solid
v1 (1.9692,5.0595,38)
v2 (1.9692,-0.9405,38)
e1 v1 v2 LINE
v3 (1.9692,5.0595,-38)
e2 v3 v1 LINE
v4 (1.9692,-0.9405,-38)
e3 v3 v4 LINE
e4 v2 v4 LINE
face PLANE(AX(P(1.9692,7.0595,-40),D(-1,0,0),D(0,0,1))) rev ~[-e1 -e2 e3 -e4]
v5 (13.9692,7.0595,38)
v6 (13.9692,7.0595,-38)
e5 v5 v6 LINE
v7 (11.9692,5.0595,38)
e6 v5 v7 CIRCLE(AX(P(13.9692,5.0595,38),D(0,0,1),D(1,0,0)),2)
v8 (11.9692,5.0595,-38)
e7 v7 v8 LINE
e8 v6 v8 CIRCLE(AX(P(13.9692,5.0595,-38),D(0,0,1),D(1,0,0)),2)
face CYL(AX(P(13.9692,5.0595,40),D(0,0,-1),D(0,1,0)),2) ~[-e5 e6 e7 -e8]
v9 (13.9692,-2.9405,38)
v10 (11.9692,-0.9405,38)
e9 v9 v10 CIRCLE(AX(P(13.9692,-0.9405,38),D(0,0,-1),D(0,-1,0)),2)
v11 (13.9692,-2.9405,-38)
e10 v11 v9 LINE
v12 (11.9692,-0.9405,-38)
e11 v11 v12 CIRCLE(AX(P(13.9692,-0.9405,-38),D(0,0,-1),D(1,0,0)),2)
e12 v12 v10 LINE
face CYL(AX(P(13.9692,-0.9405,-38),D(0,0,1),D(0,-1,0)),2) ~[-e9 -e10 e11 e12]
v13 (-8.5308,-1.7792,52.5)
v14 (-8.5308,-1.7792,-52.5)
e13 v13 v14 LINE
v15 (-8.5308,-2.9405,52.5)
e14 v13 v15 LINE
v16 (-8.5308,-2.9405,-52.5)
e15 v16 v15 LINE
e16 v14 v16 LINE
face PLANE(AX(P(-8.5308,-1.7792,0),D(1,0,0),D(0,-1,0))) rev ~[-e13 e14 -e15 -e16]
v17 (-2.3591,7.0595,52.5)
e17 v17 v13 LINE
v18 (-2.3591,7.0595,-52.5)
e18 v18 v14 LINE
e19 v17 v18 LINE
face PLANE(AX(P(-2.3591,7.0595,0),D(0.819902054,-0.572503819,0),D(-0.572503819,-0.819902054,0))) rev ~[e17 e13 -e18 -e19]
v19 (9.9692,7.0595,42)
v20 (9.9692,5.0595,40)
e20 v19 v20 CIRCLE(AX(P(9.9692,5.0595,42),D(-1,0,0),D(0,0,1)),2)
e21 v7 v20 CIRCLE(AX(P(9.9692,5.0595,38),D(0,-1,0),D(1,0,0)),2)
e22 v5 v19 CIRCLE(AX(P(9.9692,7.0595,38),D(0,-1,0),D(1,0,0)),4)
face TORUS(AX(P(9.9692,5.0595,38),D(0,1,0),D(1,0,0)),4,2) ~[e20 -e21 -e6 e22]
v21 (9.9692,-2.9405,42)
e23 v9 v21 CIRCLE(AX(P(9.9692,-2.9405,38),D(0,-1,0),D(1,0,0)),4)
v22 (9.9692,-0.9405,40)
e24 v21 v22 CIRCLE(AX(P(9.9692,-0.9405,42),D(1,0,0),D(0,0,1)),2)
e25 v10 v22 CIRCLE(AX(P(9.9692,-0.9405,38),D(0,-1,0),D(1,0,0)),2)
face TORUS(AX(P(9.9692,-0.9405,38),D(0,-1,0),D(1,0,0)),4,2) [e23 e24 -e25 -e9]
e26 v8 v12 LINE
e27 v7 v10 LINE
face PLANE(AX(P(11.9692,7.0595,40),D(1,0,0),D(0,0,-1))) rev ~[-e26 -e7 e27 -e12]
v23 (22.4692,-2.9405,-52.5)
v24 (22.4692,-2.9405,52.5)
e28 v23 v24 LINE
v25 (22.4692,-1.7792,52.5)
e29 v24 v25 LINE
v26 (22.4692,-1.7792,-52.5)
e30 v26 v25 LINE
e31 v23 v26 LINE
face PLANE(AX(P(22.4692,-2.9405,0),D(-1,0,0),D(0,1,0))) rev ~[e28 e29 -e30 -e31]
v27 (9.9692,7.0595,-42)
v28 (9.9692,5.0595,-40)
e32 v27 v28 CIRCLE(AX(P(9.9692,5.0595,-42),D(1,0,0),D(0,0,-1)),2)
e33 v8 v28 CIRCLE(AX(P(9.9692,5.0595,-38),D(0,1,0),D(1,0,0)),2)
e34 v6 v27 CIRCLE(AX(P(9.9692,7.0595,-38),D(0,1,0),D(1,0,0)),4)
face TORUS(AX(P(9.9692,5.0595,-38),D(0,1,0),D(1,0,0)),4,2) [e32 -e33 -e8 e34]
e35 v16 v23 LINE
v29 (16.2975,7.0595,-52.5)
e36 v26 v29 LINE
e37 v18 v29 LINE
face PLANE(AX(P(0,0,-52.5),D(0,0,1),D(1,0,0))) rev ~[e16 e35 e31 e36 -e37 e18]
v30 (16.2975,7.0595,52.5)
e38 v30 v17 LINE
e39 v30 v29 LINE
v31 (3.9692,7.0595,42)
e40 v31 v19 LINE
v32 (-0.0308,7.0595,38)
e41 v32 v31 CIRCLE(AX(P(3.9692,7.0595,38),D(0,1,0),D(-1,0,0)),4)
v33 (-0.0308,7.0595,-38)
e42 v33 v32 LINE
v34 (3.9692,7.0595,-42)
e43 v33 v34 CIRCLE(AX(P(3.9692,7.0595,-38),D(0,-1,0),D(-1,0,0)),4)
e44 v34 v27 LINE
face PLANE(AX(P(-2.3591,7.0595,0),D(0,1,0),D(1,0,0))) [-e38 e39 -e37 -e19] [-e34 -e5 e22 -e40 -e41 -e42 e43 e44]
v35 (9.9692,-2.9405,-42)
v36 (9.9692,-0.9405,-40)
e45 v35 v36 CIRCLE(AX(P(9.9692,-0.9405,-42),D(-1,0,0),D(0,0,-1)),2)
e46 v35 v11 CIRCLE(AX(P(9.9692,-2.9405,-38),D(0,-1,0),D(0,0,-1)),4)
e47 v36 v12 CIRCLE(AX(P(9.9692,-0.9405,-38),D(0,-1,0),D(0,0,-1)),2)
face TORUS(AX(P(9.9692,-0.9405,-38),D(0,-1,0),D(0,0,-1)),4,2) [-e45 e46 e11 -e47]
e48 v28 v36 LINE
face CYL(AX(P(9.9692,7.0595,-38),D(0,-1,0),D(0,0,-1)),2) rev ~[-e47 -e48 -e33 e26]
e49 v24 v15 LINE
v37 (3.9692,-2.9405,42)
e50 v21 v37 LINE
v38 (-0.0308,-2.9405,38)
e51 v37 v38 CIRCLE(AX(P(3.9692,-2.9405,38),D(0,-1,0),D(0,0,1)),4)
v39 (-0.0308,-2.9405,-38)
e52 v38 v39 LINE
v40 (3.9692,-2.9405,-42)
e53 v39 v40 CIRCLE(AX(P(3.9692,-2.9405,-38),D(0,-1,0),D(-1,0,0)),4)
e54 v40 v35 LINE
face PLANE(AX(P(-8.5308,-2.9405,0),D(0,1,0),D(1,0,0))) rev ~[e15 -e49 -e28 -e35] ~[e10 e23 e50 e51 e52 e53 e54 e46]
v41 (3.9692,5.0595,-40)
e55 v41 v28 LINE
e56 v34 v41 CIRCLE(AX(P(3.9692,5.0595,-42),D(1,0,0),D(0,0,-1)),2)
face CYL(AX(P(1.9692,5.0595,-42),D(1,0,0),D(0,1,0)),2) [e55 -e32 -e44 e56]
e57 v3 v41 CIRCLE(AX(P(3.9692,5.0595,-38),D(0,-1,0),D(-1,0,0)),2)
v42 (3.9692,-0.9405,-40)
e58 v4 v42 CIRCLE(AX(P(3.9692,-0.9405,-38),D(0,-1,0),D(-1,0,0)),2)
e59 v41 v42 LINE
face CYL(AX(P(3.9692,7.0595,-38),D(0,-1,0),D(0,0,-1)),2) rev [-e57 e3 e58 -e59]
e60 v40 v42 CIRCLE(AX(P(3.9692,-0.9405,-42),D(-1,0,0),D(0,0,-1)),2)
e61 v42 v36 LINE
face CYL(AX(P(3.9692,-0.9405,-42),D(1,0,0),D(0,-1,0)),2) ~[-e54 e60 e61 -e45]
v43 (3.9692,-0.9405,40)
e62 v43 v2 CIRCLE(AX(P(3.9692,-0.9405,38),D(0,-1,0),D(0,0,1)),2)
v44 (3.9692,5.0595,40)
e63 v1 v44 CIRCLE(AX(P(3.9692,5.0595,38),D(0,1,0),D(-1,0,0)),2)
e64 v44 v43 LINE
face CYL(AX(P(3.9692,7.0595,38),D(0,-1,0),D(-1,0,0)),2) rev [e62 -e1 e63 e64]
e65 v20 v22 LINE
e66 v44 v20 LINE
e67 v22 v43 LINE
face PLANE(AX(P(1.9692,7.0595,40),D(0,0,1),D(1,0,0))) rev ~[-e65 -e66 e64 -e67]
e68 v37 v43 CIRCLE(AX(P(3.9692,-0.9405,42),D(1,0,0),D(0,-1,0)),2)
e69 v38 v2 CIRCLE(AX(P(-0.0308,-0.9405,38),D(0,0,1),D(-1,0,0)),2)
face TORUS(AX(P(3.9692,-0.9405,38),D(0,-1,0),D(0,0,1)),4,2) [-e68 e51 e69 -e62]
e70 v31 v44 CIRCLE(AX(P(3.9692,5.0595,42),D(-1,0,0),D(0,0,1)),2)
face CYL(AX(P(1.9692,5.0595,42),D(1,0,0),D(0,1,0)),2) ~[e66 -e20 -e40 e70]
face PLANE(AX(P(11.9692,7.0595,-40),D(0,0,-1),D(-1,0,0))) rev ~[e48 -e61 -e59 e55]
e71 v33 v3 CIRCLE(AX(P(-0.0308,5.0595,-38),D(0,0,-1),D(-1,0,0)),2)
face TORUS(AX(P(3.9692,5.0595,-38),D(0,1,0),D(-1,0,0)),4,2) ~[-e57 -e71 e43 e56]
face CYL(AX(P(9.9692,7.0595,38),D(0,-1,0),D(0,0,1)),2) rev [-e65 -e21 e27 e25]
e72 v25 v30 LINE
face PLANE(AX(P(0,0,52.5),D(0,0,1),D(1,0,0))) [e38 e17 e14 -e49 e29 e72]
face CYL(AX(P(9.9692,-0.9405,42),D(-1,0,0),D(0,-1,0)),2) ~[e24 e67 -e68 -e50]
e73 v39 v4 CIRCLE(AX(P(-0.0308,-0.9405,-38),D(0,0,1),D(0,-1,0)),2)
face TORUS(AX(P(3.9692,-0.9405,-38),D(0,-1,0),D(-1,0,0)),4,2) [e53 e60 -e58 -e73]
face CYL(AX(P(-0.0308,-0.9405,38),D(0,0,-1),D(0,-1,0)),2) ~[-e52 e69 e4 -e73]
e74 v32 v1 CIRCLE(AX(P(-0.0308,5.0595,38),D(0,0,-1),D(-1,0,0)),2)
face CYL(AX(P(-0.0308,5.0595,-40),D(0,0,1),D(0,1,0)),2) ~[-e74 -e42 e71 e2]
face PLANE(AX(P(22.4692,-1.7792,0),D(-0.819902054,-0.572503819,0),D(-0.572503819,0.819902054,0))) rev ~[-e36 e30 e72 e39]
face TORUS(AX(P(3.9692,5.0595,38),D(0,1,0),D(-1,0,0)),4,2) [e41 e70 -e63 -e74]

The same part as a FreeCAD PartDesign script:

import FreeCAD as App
import Part
import Sketcher


def edges_at(feature, points):
    """Names of the edges that pass closest to the given points."""
    edges = feature.Shape.Edges
    near = lambda p: min(range(len(edges)), key=lambda i: edges[i].distToShape(Part.Vertex(*p))[0])
    return sorted({f"Edge{near(p) + 1}" for p in points})

doc = App.newDocument("Part")
body = doc.addObject("PartDesign::Body", "Body")

# Sketch on XY plane
sketch1 = body.newObject("Sketcher::SketchObject", "Sketch")
sketch1.AttachmentSupport = (doc.getObject("XY_Plane"), [""])
sketch1.MapMode = "FlatFace"
sketch1.addGeometry([
    Part.LineSegment(App.Vector(-8.5308, -1.7792, 0), App.Vector(-8.5308, -2.9405, 0)),  # 0
    Part.LineSegment(App.Vector(-8.5308, -2.9405, 0), App.Vector(22.4692, -2.9405, 0)),  # 1
    Part.LineSegment(App.Vector(22.4692, -2.9405, 0), App.Vector(22.4692, -1.7792, 0)),  # 2
    Part.LineSegment(App.Vector(22.4692, -1.7792, 0), App.Vector(16.2975, 7.0595, 0)),  # 3
    Part.LineSegment(App.Vector(16.2975, 7.0595, 0), App.Vector(-2.3591, 7.0595, 0)),  # 4
    Part.LineSegment(App.Vector(-2.3591, 7.0595, 0), App.Vector(-8.5308, -1.7792, 0)),  # 5
], False)
sketch1.addConstraint([
    Sketcher.Constraint("Coincident", 0, 2, 1, 1),
    Sketcher.Constraint("Coincident", 1, 2, 2, 1),
    Sketcher.Constraint("Coincident", 2, 2, 3, 1),
    Sketcher.Constraint("Coincident", 3, 2, 4, 1),
    Sketcher.Constraint("Coincident", 4, 2, 5, 1),
    Sketcher.Constraint("Coincident", 5, 2, 0, 1),
    Sketcher.Constraint("Vertical", 0),
    Sketcher.Constraint("Horizontal", 1),
    Sketcher.Constraint("Vertical", 2),
    Sketcher.Constraint("Horizontal", 4),
    Sketcher.Constraint("Horizontal", 2, 2, 5, 2),
    Sketcher.Constraint("Equal", 3, 5),
    Sketcher.Constraint("DistanceX", 1, 1, 1, 2, 31.0),
    Sketcher.Constraint("DistanceY", 1, 2, 3, 2, 10.0),
    Sketcher.Constraint("DistanceX", 4, 2, 4, 1, 18.6566),
    Sketcher.Constraint("DistanceY", 0, 2, 0, 1, 1.1613),
    Sketcher.Constraint("DistanceX", 4, 2, -1, 1, 2.359),
    Sketcher.Constraint("DistanceY", 0, 2, -1, 1, 2.9405),
])
pad1 = body.newObject("PartDesign::Pad", "Pad")
pad1.Profile = sketch1
pad1.Length = 105
pad1.Midplane = True

# Sketch on XZ plane
sketch2 = body.newObject("Sketcher::SketchObject", "Sketch001")
sketch2.AttachmentSupport = (doc.getObject("XZ_Plane"), [""])
sketch2.MapMode = "FlatFace"
sketch2.AttachmentOffset = App.Placement(App.Vector(0, 0, -7.0595), App.Rotation())
sketch2.addGeometry([
    Part.LineSegment(App.Vector(11.9692, -40, 0), App.Vector(1.9692, -40, 0)),
    Part.LineSegment(App.Vector(1.9692, -40, 0), App.Vector(1.9692, 40, 0)),
    Part.LineSegment(App.Vector(1.9692, 40, 0), App.Vector(11.9692, 40, 0)),
    Part.LineSegment(App.Vector(11.9692, 40, 0), App.Vector(11.9692, -40, 0)),
], False)
sketch2.addConstraint([
    Sketcher.Constraint("Coincident", 0, 2, 1, 1),
    Sketcher.Constraint("Coincident", 1, 2, 2, 1),
    Sketcher.Constraint("Coincident", 2, 2, 3, 1),
    Sketcher.Constraint("Coincident", 3, 2, 0, 1),
    Sketcher.Constraint("Horizontal", 0),
    Sketcher.Constraint("Vertical", 1),
    Sketcher.Constraint("Horizontal", 2),
    Sketcher.Constraint("Vertical", 3),
    Sketcher.Constraint("DistanceX", 0, 2, 0, 1, 10.0),
    Sketcher.Constraint("DistanceY", 1, 1, 1, 2, 80.0),
    Sketcher.Constraint("DistanceY", 0, 2, -1, 1, 40.0),
    Sketcher.Constraint("DistanceX", -1, 1, 0, 2, 1.9692),
])
pocket1 = body.newObject("PartDesign::Pocket", "Pocket")
pocket1.Profile = sketch2
pocket1.Length = 10
pocket1.Reversed = True
doc.recompute()

fillet = body.newObject("PartDesign::Fillet", "Fillet")
fillet.Base = (pocket1, edges_at(pocket1, [
    (11.969, 2.059, 40),
    (1.969, 2.059, 40),
    (1.969, 2.059, -40),
    (11.969, 2.059, -40),
    (11.969, 7.059, 0),
    (1.969, 7.059, 0),
    (6.969, 7.059, -40),
    (6.969, 7.059, 40),
]))
fillet.Radius = 2
doc.recompute()

fillet2 = body.newObject("PartDesign::Fillet", "Fillet001")
fillet2.Base = (fillet, edges_at(fillet, [
    (11.383, -2.941, -39.414),
    (6.969, -2.941, -40),
    (2.555, -2.941, -39.414),
    (1.969, -2.941, 0),
    (2.555, -2.941, 39.414),
    (6.969, -2.941, 40),
    (11.383, -2.941, 39.414),
    (11.969, -2.941, 0),
]))
fillet2.Radius = 2

doc.recompute()
